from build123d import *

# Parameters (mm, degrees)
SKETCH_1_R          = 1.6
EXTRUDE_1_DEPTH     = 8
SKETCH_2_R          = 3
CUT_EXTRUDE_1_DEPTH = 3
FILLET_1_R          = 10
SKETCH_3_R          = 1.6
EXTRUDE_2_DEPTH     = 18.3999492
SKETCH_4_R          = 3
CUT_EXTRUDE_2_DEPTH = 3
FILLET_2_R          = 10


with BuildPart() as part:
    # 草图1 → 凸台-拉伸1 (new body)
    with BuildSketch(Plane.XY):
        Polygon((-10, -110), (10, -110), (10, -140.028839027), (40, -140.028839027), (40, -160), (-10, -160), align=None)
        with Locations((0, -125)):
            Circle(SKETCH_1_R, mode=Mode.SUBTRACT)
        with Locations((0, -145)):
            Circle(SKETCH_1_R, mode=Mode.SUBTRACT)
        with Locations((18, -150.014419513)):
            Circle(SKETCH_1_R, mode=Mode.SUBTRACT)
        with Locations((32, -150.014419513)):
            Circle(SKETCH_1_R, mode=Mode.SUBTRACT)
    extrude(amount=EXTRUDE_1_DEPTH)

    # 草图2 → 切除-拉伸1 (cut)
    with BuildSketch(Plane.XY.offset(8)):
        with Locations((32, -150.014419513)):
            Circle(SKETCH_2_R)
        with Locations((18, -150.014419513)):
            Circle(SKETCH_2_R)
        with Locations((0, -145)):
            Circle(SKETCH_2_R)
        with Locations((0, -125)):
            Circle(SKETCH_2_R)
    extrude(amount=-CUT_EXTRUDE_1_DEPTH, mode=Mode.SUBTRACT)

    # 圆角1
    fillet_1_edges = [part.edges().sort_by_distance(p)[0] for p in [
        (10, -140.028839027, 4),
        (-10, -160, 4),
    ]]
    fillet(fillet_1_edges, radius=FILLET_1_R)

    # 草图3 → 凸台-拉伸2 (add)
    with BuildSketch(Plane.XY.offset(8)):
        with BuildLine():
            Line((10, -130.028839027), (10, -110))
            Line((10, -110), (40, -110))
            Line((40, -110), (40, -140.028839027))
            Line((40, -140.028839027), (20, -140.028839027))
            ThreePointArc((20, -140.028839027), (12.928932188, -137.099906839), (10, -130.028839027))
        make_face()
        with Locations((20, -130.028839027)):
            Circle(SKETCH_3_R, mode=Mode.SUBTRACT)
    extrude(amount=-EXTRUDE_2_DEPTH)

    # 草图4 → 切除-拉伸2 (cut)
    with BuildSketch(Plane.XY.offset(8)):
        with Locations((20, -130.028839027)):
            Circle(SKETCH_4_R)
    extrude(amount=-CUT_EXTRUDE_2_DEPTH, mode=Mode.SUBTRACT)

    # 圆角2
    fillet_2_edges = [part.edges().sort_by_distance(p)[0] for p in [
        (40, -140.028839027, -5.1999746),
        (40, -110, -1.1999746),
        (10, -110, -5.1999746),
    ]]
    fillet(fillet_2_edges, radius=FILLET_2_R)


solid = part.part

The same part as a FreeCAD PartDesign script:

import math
import FreeCAD as App
import Part
import Sketcher

V = App.Vector


def edges_at(feature, points):
    """Names of the edges that pass closest to the given points."""
    edges = feature.Shape.Edges
    near = lambda p: min(range(len(edges)), key=lambda i: edges[i].distToShape(Part.Vertex(*p))[0])
    return sorted({f"Edge{near(p) + 1}" for p in points})

doc = App.newDocument("Part")
body = doc.addObject("PartDesign::Body", "Body")

# Sketch on XY plane
sketch1 = body.newObject("Sketcher::SketchObject", "Sketch")
sketch1.AttachmentSupport = (doc.getObject("XY_Plane"), [""])
sketch1.MapMode = "FlatFace"
sketch1.addGeometry([
    Part.LineSegment(V(10, -110, 0), V(-10, -110, 0)),  # 0
    Part.LineSegment(V(-10, -110, 0), V(-10, -160, 0)),  # 1
    Part.LineSegment(V(-10, -160, 0), V(40, -160, 0)),  # 2
    Part.LineSegment(V(40, -160, 0), V(40, -140.028839, 0)),  # 3
    Part.LineSegment(V(40, -140.028839, 0), V(10, -140.028839, 0)),  # 4
    Part.LineSegment(V(10, -140.028839, 0), V(10, -110, 0)),  # 5
    Part.Circle(V(32, -150.01442, 0), V(0, 0, 1), 1.6),  # 6
    Part.Circle(V(18, -150.01442, 0), V(0, 0, 1), 1.6),  # 7
    Part.Circle(V(0, -145, 0), V(0, 0, 1), 1.6),  # 8
    Part.Circle(V(0, -125, 0), V(0, 0, 1), 1.6),  # 9
], False)
sketch1.addConstraint([
    Sketcher.Constraint("Coincident", 0, 2, 1, 1),
    Sketcher.Constraint("Coincident", 1, 2, 2, 1),
    Sketcher.Constraint("Coincident", 2, 2, 3, 1),
    Sketcher.Constraint("Coincident", 3, 2, 4, 1),
    Sketcher.Constraint("Coincident", 4, 2, 5, 1),
    Sketcher.Constraint("Coincident", 5, 2, 0, 1),
    Sketcher.Constraint("Horizontal", 0),
    Sketcher.Constraint("Vertical", 1),
    Sketcher.Constraint("Horizontal", 2),
    Sketcher.Constraint("Vertical", 3),
    Sketcher.Constraint("Horizontal", 4),
    Sketcher.Constraint("Vertical", 5),
    Sketcher.Constraint("Equal", 6, 7),
    Sketcher.Constraint("Equal", 7, 8),
    Sketcher.Constraint("Equal", 8, 9),
    Sketcher.Constraint("PointOnObject", 8, 3, -2),
    Sketcher.Constraint("PointOnObject", 9, 3, -2),
    Sketcher.Constraint("Horizontal", 6, 3, 7, 3),
    Sketcher.Constraint("Equal", 2, 1),
    Sketcher.Constraint("Diameter", 6, 3.2),
    Sketcher.Constraint("DistanceX", 0, 2, 0, 1, 20.0),
    Sketcher.Constraint("DistanceX", 2, 1, 2, 2, 50.0),
    Sketcher.Constraint("DistanceX", -1, 1, 6, 3, 32.0),
    Sketcher.Constraint("DistanceX", -1, 1, 7, 3, 18.0),
    Sketcher.Constraint("DistanceY", 8, 3, -1, 1, 145.0),
    Sketcher.Constraint("DistanceY", 9, 3, -1, 1, 125.0),
    Sketcher.Constraint("DistanceX", 0, 2, -1, 1, 10.0),
    Sketcher.Constraint("DistanceY", 0, 2, -1, 1, 110.0),
    Sketcher.Constraint("DistanceY", 3, 1, 3, 2, 19.971161),
    Sketcher.Constraint("DistanceY", 6, 3, -1, 1, 150.01442),
])
pad1 = body.newObject("PartDesign::Pad", "Pad")
pad1.Profile = sketch1
pad1.Length = 8

# Sketch on XY plane
sketch2 = body.newObject("Sketcher::SketchObject", "Sketch001")
sketch2.AttachmentSupport = (doc.getObject("XY_Plane"), [""])
sketch2.MapMode = "FlatFace"
sketch2.AttachmentOffset = App.Placement(V(0, 0, 8), App.Rotation())
sketch2.addGeometry([
    Part.Circle(V(32, -150.01442, 0), V(0, 0, 1), 3),
    Part.Circle(V(18, -150.01442, 0), V(0, 0, 1), 3),
    Part.Circle(V(0, -145, 0), V(0, 0, 1), 3),
    Part.Circle(V(0, -125, 0), V(0, 0, 1), 3),
], False)
sketch2.addConstraint([
    Sketcher.Constraint("Equal", 0, 1),
    Sketcher.Constraint("Equal", 1, 2),
    Sketcher.Constraint("Equal", 2, 3),
    Sketcher.Constraint("PointOnObject", 2, 3, -2),
    Sketcher.Constraint("PointOnObject", 3, 3, -2),
    Sketcher.Constraint("Horizontal", 0, 3, 1, 3),
    Sketcher.Constraint("Diameter", 0, 6.0),
    Sketcher.Constraint("DistanceX", -1, 1, 0, 3, 32.0),
    Sketcher.Constraint("DistanceX", -1, 1, 1, 3, 18.0),
    Sketcher.Constraint("DistanceY", 2, 3, -1, 1, 145.0),
    Sketcher.Constraint("DistanceY", 3, 3, -1, 1, 125.0),
    Sketcher.Constraint("DistanceY", 0, 3, -1, 1, 150.01442),
])
pocket1 = body.newObject("PartDesign::Pocket", "Pocket")
pocket1.Profile = sketch2
pocket1.Length = 3
doc.recompute()

fillet = body.newObject("PartDesign::Fillet", "Fillet")
fillet.Base = (pocket1, edges_at(pocket1, [(10, -140.029, 4), (-10, -160, 4)]))
fillet.Radius = 10

# Sketch on XY plane
sketch3 = body.newObject("Sketcher::SketchObject", "Sketch002")
sketch3.AttachmentSupport = (doc.getObject("XY_Plane"), [""])
sketch3.MapMode = "FlatFace"
sketch3.AttachmentOffset = App.Placement(V(0, 0, 8), App.Rotation())
sketch3.addGeometry([
    Part.LineSegment(V(10, -110, 0), V(10, -130.028839, 0)),  # 0
    Part.ArcOfCircle(Part.Circle(V(20, -130.028839, 0), V(0, 0, 1), 10), math.radians(180), math.radians(270)),  # 1
    Part.LineSegment(V(20, -140.028839, 0), V(40, -140.028839, 0)),  # 2
    Part.LineSegment(V(40, -140.028839, 0), V(40, -110, 0)),  # 3
    Part.LineSegment(V(40, -110, 0), V(10, -110, 0)),  # 4
    Part.Circle(V(20, -130.028839, 0), V(0, 0, 1), 1.6),  # 5
], False)
sketch3.addConstraint([
    Sketcher.Constraint("Tangent", 0, 2, 1, 1),
    Sketcher.Constraint("Tangent", 1, 2, 2, 1),
    Sketcher.Constraint("Coincident", 2, 2, 3, 1),
    Sketcher.Constraint("Coincident", 3, 2, 4, 1),
    Sketcher.Constraint("Coincident", 4, 2, 0, 1),
    Sketcher.Constraint("Vertical", 0),
    Sketcher.Constraint("Horizontal", 2),
    Sketcher.Constraint("Vertical", 3),
    Sketcher.Constraint("Horizontal", 4),
    Sketcher.Constraint("Coincident", 5, 3, 1, 3),
    Sketcher.Constraint("Radius", 1, 10.0),
    Sketcher.Constraint("Diameter", 5, 3.2),
    Sketcher.Constraint("DistanceX", 2, 1, 2, 2, 20.0),
    Sketcher.Constraint("DistanceX", -1, 1, 1, 3, 20.0),
    Sketcher.Constraint("DistanceY", 3, 2, -1, 1, 110.0),
    Sketcher.Constraint("DistanceY", 0, 2, 0, 1, 20.028839),
])
pad2 = body.newObject("PartDesign::Pad", "Pad001")
pad2.Profile = sketch3
pad2.Length = 18.399949
pad2.Reversed = True

# Sketch on XY plane
sketch4 = body.newObject("Sketcher::SketchObject", "Sketch003")
sketch4.AttachmentSupport = (doc.getObject("XY_Plane"), [""])
sketch4.MapMode = "FlatFace"
sketch4.AttachmentOffset = App.Placement(V(0, 0, 8), App.Rotation())
sketch4.addGeometry(Part.Circle(V(20, -130.028839, 0), V(0, 0, 1), 3), False)
sketch4.addConstraint([
    Sketcher.Constraint("Diameter", 0, 6.0),
    Sketcher.Constraint("DistanceX", -1, 1, 0, 3, 20.0),
    Sketcher.Constraint("DistanceY", 0, 3, -1, 1, 130.028839),
])
pocket2 = body.newObject("PartDesign::Pocket", "Pocket001")
pocket2.Profile = sketch4
pocket2.Length = 3
doc.recompute()

fillet2 = body.newObject("PartDesign::Fillet", "Fillet001")
fillet2.Base = (pocket2, edges_at(pocket2, [(40, -140.029, -5.2), (40, -110, -1.2), (10, -110, -5.2)]))
fillet2.Radius = 10

doc.recompute()
